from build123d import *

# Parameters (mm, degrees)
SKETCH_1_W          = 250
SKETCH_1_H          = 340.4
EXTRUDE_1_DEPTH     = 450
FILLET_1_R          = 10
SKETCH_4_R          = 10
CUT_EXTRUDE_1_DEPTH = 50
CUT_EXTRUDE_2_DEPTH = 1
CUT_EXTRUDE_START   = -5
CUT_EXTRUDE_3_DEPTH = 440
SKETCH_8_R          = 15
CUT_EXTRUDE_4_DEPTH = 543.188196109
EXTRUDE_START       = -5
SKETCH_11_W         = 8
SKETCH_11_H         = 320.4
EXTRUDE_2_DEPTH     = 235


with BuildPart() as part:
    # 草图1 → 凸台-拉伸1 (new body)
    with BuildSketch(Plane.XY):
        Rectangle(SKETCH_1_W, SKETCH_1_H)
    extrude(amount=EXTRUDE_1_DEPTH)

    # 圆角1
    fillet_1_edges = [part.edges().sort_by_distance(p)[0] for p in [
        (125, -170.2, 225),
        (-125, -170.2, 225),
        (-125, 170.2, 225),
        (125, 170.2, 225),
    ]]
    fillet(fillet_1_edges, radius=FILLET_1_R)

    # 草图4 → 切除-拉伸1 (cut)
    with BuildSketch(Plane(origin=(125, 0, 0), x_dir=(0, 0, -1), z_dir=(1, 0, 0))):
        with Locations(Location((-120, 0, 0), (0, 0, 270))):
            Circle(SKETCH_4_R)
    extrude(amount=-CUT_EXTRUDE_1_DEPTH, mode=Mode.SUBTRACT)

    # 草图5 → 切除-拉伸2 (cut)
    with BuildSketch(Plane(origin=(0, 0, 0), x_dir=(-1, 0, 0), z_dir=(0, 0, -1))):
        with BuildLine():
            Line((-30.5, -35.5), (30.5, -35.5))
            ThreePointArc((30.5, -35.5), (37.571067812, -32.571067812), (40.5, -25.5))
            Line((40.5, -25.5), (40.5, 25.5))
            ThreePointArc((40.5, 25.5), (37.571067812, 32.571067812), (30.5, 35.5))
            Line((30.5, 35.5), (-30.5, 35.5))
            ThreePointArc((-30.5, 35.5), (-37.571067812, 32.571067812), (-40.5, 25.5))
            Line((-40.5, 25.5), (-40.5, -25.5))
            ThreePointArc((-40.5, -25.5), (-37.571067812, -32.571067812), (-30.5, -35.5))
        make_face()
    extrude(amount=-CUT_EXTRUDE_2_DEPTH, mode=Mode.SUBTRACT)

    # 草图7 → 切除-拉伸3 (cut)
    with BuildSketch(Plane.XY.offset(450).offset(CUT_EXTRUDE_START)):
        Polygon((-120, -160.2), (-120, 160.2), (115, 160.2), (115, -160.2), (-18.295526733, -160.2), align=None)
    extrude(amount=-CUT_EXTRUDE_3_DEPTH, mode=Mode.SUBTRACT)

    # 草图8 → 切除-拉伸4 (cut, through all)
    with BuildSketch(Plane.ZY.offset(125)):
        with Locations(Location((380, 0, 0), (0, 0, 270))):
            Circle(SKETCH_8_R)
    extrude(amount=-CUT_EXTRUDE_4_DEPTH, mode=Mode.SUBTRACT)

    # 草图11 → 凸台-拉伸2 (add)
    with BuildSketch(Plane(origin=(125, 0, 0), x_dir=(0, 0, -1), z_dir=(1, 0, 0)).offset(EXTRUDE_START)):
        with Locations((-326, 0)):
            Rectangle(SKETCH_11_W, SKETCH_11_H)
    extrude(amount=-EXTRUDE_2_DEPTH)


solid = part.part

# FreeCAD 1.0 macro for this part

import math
import FreeCAD as App
import Part
import Sketcher
from FreeCAD import Vector
Q = App.Units.Quantity


def edges_at(feature, points):
    """Names of the edges that pass closest to the given points."""
    edges = feature.Shape.Edges
    near = lambda p: min(range(len(edges)), key=lambda i: edges[i].distToShape(Part.Vertex(*p))[0])
    return sorted({f"Edge{near(p) + 1}" for p in points})

doc = App.newDocument("Part")
body = doc.addObject("PartDesign::Body", "Body")

# Sketch on XY plane
sketch1 = body.newObject("Sketcher::SketchObject", "Sketch")
sketch1.AttachmentSupport = (doc.getObject("XY_Plane"), [""])
sketch1.MapMode = "FlatFace"
sketch1.addGeometry(Part.LineSegment(Vector(-125, 170, 0), Vector(-125, -170, 0)), False)
sketch1.addGeometry(Part.LineSegment(Vector(-125, -170, 0), Vector(125, -170, 0)), False)
sketch1.addGeometry(Part.LineSegment(Vector(125, -170, 0), Vector(125, 170, 0)), False)
sketch1.addGeometry(Part.LineSegment(Vector(125, 170, 0), Vector(-125, 170, 0)), False)
sketch1.addConstraint(Sketcher.Constraint("Coincident", 0, 2, 1, 1))
sketch1.addConstraint(Sketcher.Constraint("Coincident", 1, 2, 2, 1))
sketch1.addConstraint(Sketcher.Constraint("Coincident", 2, 2, 3, 1))
sketch1.addConstraint(Sketcher.Constraint("Coincident", 3, 2, 0, 1))
sketch1.addConstraint(Sketcher.Constraint("Vertical", 0))
sketch1.addConstraint(Sketcher.Constraint("Horizontal", 1))
sketch1.addConstraint(Sketcher.Constraint("Vertical", 2))
sketch1.addConstraint(Sketcher.Constraint("Horizontal", 3))
sketch1.addConstraint(Sketcher.Constraint("Symmetric", 0, 2, 2, 2, -1, 1))
sketch1.addConstraint(Sketcher.Constraint("DistanceX", 1, 1, 1, 2, Q("250 mm")))
sketch1.addConstraint(Sketcher.Constraint("DistanceY", 0, 2, 0, 1, Q("340.4 mm")))
pad1 = body.newObject("PartDesign::Pad", "Pad")
pad1.Profile = sketch1
pad1.Length = 450
doc.recompute()

fillet = body.newObject("PartDesign::Fillet", "Fillet")
fillet.Base = (pad1, edges_at(pad1, [
    (125, -170.2, 225),
    (-125, -170.2, 225),
    (-125, 170.2, 225),
    (125, 170.2, 225),
]))
fillet.Radius = 10

# Sketch on YZ plane
sketch2 = body.newObject("Sketcher::SketchObject", "Sketch001")
sketch2.AttachmentSupport = (doc.getObject("YZ_Plane"), [""])
sketch2.MapMode = "FlatFace"
sketch2.AttachmentOffset = App.Placement(Vector(0, 0, 125), App.Rotation())
sketch2.addGeometry(Part.Circle(Vector(0, 120, 0), Vector(0, 0, 1), 10), False)
sketch2.addConstraint(Sketcher.Constraint("PointOnObject", 0, 3, -2))
sketch2.addConstraint(Sketcher.Constraint("Diameter", 0, Q("20 mm")))
sketch2.addConstraint(Sketcher.Constraint("DistanceY", -1, 1, 0, 3, Q("120 mm")))
pocket1 = body.newObject("PartDesign::Pocket", "Pocket")
pocket1.Profile = sketch2
pocket1.Length = 50

# Sketch on XY plane
sketch3 = body.newObject("Sketcher::SketchObject", "Sketch002")
sketch3.AttachmentSupport = (doc.getObject("XY_Plane"), [""])
sketch3.MapMode = "FlatFace"
sketch3.addGeometry(Part.LineSegment(Vector(30, -36, 0), Vector(-30, -36, 0)), False)
sketch3.addGeometry(Part.ArcOfCircle(Part.Circle(Vector(-30, -26, 0), Vector(0, 0, 1), 10), math.radians(180), math.radians(270)), False)
sketch3.addGeometry(Part.LineSegment(Vector(-40, -26, 0), Vector(-40, 26, 0)), False)
sketch3.addGeometry(Part.ArcOfCircle(Part.Circle(Vector(-30, 26, 0), Vector(0, 0, 1), 10), math.radians(90), math.radians(180)), False)
sketch3.addGeometry(Part.LineSegment(Vector(-30, 36, 0), Vector(30, 36, 0)), False)
sketch3.addGeometry(Part.ArcOfCircle(Part.Circle(Vector(30, 26, 0), Vector(0, 0, 1), 10), math.radians(0), math.radians(90)), False)
sketch3.addGeometry(Part.LineSegment(Vector(40, 26, 0), Vector(40, -26, 0)), False)
sketch3.addGeometry(Part.ArcOfCircle(Part.Circle(Vector(30, -26, 0), Vector(0, 0, 1), 10), math.radians(-90), math.radians(0)), False)
sketch3.addConstraint(Sketcher.Constraint("Tangent", 0, 2, 1, 2))
sketch3.addConstraint(Sketcher.Constraint("Tangent", 1, 1, 2, 1))
sketch3.addConstraint(Sketcher.Constraint("Tangent", 2, 2, 3, 2))
sketch3.addConstraint(Sketcher.Constraint("Tangent", 3, 1, 4, 1))
sketch3.addConstraint(Sketcher.Constraint("Tangent", 4, 2, 5, 2))
sketch3.addConstraint(Sketcher.Constraint("Tangent", 5, 1, 6, 1))
sketch3.addConstraint(Sketcher.Constraint("Tangent", 6, 2, 7, 2))
sketch3.addConstraint(Sketcher.Constraint("Tangent", 7, 1, 0, 1))
sketch3.addConstraint(Sketcher.Constraint("Horizontal", 0))
sketch3.addConstraint(Sketcher.Constraint("Vertical", 2))
sketch3.addConstraint(Sketcher.Constraint("Horizontal", 4))
sketch3.addConstraint(Sketcher.Constraint("Vertical", 6))
sketch3.addConstraint(Sketcher.Constraint("Equal", 1, 3))
sketch3.addConstraint(Sketcher.Constraint("Equal", 3, 5))
sketch3.addConstraint(Sketcher.Constraint("Equal", 5, 7))
sketch3.addConstraint(Sketcher.Constraint("Symmetric", 1, 3, 5, 3, -1, 1))
sketch3.addConstraint(Sketcher.Constraint("Radius", 1, Q("10 mm")))
sketch3.addConstraint(Sketcher.Constraint("DistanceX", 0, 2, 0, 1, Q("61 mm")))
sketch3.addConstraint(Sketcher.Constraint("DistanceY", 2, 1, 2, 2, Q("51 mm")))
pocket2 = body.newObject("PartDesign::Pocket", "Pocket001")
pocket2.Profile = sketch3
pocket2.Length = 1
pocket2.Reversed = True

# Sketch on XY plane
sketch4 = body.newObject("Sketcher::SketchObject", "Sketch003")
sketch4.AttachmentSupport = (doc.getObject("XY_Plane"), [""])
sketch4.MapMode = "FlatFace"
sketch4.AttachmentOffset = App.Placement(Vector(0, 0, 445), App.Rotation())
sketch4.addGeometry(Part.LineSegment(Vector(-120, 160, 0), Vector(-120, -160, 0)), False)
sketch4.addGeometry(Part.LineSegment(Vector(-120, -160, 0), Vector(115, -160, 0)), False)
sketch4.addGeometry(Part.LineSegment(Vector(115, -160, 0), Vector(115, 160, 0)), False)
sketch4.addGeometry(Part.LineSegment(Vector(115, 160, 0), Vector(-120, 160, 0)), False)
sketch4.addConstraint(Sketcher.Constraint("Coincident", 0, 2, 1, 1))
sketch4.addConstraint(Sketcher.Constraint("Coincident", 1, 2, 2, 1))
sketch4.addConstraint(Sketcher.Constraint("Coincident", 2, 2, 3, 1))
sketch4.addConstraint(Sketcher.Constraint("Coincident", 3, 2, 0, 1))
sketch4.addConstraint(Sketcher.Constraint("Vertical", 0))
sketch4.addConstraint(Sketcher.Constraint("Horizontal", 1))
sketch4.addConstraint(Sketcher.Constraint("Vertical", 2))
sketch4.addConstraint(Sketcher.Constraint("Horizontal", 3))
sketch4.addConstraint(Sketcher.Constraint("DistanceX", 1, 1, 1, 2, Q("235 mm")))
sketch4.addConstraint(Sketcher.Constraint("DistanceY", 0, 2, 0, 1, Q("320.4 mm")))
sketch4.addConstraint(Sketcher.Constraint("DistanceX", 0, 2, -1, 1, Q("120 mm")))
sketch4.addConstraint(Sketcher.Constraint("DistanceY", 0, 2, -1, 1, Q("160.2 mm")))
pocket3 = body.newObject("PartDesign::Pocket", "Pocket002")
pocket3.Profile = sketch4
pocket3.Length = 440

# Sketch on YZ plane
sketch5 = body.newObject("Sketcher::SketchObject", "Sketch004")
sketch5.AttachmentSupport = (doc.getObject("YZ_Plane"), [""])
sketch5.MapMode = "FlatFace"
sketch5.AttachmentOffset = App.Placement(Vector(0, 0, -125), App.Rotation())
sketch5.addGeometry(Part.Circle(Vector(0, 380, 0), Vector(0, 0, 1), 15), False)
sketch5.addConstraint(Sketcher.Constraint("PointOnObject", 0, 3, -2))
sketch5.addConstraint(Sketcher.Constraint("Diameter", 0, Q("30 mm")))
sketch5.addConstraint(Sketcher.Constraint("DistanceY", -1, 1, 0, 3, Q("380 mm")))
pocket4 = body.newObject("PartDesign::Pocket", "Pocket003")
pocket4.Profile = sketch5
pocket4.Type = "ThroughAll"
pocket4.Reversed = True

# Sketch on YZ plane
sketch6 = body.newObject("Sketcher::SketchObject", "Sketch005")
sketch6.AttachmentSupport = (doc.getObject("YZ_Plane"), [""])
sketch6.MapMode = "FlatFace"
sketch6.AttachmentOffset = App.Placement(Vector(0, 0, 120), App.Rotation())
sketch6.addGeometry(Part.LineSegment(Vector(160, 330, 0), Vector(-160, 330, 0)), False)
sketch6.addGeometry(Part.LineSegment(Vector(-160, 330, 0), Vector(-160, 322, 0)), False)
sketch6.addGeometry(Part.LineSegment(Vector(-160, 322, 0), Vector(160, 322, 0)), False)
sketch6.addGeometry(Part.LineSegment(Vector(160, 322, 0), Vector(160, 330, 0)), False)
sketch6.addConstraint(Sketcher.Constraint("Coincident", 0, 2, 1, 1))
sketch6.addConstraint(Sketcher.Constraint("Coincident", 1, 2, 2, 1))
sketch6.addConstraint(Sketcher.Constraint("Coincident", 2, 2, 3, 1))
sketch6.addConstraint(Sketcher.Constraint("Coincident", 3, 2, 0, 1))
sketch6.addConstraint(Sketcher.Constraint("Horizontal", 0))
sketch6.addConstraint(Sketcher.Constraint("Vertical", 1))
sketch6.addConstraint(Sketcher.Constraint("Horizontal", 2))
sketch6.addConstraint(Sketcher.Constraint("Vertical", 3))
sketch6.addConstraint(Sketcher.Constraint("DistanceY", 1, 2, 1, 1, Q("8 mm")))
sketch6.addConstraint(Sketcher.Constraint("DistanceX", 0, 2, 0, 1, Q("320.4 mm")))
sketch6.addConstraint(Sketcher.Constraint("DistanceY", -1, 1, 0, 2, Q("330 mm")))
sketch6.addConstraint(Sketcher.Constraint("DistanceX", 0, 2, -1, 1, Q("160.2 mm")))
pad2 = body.newObject("PartDesign::Pad", "Pad001")
pad2.Profile = sketch6
pad2.Length = 235
pad2.Reversed = True

doc.recompute()
